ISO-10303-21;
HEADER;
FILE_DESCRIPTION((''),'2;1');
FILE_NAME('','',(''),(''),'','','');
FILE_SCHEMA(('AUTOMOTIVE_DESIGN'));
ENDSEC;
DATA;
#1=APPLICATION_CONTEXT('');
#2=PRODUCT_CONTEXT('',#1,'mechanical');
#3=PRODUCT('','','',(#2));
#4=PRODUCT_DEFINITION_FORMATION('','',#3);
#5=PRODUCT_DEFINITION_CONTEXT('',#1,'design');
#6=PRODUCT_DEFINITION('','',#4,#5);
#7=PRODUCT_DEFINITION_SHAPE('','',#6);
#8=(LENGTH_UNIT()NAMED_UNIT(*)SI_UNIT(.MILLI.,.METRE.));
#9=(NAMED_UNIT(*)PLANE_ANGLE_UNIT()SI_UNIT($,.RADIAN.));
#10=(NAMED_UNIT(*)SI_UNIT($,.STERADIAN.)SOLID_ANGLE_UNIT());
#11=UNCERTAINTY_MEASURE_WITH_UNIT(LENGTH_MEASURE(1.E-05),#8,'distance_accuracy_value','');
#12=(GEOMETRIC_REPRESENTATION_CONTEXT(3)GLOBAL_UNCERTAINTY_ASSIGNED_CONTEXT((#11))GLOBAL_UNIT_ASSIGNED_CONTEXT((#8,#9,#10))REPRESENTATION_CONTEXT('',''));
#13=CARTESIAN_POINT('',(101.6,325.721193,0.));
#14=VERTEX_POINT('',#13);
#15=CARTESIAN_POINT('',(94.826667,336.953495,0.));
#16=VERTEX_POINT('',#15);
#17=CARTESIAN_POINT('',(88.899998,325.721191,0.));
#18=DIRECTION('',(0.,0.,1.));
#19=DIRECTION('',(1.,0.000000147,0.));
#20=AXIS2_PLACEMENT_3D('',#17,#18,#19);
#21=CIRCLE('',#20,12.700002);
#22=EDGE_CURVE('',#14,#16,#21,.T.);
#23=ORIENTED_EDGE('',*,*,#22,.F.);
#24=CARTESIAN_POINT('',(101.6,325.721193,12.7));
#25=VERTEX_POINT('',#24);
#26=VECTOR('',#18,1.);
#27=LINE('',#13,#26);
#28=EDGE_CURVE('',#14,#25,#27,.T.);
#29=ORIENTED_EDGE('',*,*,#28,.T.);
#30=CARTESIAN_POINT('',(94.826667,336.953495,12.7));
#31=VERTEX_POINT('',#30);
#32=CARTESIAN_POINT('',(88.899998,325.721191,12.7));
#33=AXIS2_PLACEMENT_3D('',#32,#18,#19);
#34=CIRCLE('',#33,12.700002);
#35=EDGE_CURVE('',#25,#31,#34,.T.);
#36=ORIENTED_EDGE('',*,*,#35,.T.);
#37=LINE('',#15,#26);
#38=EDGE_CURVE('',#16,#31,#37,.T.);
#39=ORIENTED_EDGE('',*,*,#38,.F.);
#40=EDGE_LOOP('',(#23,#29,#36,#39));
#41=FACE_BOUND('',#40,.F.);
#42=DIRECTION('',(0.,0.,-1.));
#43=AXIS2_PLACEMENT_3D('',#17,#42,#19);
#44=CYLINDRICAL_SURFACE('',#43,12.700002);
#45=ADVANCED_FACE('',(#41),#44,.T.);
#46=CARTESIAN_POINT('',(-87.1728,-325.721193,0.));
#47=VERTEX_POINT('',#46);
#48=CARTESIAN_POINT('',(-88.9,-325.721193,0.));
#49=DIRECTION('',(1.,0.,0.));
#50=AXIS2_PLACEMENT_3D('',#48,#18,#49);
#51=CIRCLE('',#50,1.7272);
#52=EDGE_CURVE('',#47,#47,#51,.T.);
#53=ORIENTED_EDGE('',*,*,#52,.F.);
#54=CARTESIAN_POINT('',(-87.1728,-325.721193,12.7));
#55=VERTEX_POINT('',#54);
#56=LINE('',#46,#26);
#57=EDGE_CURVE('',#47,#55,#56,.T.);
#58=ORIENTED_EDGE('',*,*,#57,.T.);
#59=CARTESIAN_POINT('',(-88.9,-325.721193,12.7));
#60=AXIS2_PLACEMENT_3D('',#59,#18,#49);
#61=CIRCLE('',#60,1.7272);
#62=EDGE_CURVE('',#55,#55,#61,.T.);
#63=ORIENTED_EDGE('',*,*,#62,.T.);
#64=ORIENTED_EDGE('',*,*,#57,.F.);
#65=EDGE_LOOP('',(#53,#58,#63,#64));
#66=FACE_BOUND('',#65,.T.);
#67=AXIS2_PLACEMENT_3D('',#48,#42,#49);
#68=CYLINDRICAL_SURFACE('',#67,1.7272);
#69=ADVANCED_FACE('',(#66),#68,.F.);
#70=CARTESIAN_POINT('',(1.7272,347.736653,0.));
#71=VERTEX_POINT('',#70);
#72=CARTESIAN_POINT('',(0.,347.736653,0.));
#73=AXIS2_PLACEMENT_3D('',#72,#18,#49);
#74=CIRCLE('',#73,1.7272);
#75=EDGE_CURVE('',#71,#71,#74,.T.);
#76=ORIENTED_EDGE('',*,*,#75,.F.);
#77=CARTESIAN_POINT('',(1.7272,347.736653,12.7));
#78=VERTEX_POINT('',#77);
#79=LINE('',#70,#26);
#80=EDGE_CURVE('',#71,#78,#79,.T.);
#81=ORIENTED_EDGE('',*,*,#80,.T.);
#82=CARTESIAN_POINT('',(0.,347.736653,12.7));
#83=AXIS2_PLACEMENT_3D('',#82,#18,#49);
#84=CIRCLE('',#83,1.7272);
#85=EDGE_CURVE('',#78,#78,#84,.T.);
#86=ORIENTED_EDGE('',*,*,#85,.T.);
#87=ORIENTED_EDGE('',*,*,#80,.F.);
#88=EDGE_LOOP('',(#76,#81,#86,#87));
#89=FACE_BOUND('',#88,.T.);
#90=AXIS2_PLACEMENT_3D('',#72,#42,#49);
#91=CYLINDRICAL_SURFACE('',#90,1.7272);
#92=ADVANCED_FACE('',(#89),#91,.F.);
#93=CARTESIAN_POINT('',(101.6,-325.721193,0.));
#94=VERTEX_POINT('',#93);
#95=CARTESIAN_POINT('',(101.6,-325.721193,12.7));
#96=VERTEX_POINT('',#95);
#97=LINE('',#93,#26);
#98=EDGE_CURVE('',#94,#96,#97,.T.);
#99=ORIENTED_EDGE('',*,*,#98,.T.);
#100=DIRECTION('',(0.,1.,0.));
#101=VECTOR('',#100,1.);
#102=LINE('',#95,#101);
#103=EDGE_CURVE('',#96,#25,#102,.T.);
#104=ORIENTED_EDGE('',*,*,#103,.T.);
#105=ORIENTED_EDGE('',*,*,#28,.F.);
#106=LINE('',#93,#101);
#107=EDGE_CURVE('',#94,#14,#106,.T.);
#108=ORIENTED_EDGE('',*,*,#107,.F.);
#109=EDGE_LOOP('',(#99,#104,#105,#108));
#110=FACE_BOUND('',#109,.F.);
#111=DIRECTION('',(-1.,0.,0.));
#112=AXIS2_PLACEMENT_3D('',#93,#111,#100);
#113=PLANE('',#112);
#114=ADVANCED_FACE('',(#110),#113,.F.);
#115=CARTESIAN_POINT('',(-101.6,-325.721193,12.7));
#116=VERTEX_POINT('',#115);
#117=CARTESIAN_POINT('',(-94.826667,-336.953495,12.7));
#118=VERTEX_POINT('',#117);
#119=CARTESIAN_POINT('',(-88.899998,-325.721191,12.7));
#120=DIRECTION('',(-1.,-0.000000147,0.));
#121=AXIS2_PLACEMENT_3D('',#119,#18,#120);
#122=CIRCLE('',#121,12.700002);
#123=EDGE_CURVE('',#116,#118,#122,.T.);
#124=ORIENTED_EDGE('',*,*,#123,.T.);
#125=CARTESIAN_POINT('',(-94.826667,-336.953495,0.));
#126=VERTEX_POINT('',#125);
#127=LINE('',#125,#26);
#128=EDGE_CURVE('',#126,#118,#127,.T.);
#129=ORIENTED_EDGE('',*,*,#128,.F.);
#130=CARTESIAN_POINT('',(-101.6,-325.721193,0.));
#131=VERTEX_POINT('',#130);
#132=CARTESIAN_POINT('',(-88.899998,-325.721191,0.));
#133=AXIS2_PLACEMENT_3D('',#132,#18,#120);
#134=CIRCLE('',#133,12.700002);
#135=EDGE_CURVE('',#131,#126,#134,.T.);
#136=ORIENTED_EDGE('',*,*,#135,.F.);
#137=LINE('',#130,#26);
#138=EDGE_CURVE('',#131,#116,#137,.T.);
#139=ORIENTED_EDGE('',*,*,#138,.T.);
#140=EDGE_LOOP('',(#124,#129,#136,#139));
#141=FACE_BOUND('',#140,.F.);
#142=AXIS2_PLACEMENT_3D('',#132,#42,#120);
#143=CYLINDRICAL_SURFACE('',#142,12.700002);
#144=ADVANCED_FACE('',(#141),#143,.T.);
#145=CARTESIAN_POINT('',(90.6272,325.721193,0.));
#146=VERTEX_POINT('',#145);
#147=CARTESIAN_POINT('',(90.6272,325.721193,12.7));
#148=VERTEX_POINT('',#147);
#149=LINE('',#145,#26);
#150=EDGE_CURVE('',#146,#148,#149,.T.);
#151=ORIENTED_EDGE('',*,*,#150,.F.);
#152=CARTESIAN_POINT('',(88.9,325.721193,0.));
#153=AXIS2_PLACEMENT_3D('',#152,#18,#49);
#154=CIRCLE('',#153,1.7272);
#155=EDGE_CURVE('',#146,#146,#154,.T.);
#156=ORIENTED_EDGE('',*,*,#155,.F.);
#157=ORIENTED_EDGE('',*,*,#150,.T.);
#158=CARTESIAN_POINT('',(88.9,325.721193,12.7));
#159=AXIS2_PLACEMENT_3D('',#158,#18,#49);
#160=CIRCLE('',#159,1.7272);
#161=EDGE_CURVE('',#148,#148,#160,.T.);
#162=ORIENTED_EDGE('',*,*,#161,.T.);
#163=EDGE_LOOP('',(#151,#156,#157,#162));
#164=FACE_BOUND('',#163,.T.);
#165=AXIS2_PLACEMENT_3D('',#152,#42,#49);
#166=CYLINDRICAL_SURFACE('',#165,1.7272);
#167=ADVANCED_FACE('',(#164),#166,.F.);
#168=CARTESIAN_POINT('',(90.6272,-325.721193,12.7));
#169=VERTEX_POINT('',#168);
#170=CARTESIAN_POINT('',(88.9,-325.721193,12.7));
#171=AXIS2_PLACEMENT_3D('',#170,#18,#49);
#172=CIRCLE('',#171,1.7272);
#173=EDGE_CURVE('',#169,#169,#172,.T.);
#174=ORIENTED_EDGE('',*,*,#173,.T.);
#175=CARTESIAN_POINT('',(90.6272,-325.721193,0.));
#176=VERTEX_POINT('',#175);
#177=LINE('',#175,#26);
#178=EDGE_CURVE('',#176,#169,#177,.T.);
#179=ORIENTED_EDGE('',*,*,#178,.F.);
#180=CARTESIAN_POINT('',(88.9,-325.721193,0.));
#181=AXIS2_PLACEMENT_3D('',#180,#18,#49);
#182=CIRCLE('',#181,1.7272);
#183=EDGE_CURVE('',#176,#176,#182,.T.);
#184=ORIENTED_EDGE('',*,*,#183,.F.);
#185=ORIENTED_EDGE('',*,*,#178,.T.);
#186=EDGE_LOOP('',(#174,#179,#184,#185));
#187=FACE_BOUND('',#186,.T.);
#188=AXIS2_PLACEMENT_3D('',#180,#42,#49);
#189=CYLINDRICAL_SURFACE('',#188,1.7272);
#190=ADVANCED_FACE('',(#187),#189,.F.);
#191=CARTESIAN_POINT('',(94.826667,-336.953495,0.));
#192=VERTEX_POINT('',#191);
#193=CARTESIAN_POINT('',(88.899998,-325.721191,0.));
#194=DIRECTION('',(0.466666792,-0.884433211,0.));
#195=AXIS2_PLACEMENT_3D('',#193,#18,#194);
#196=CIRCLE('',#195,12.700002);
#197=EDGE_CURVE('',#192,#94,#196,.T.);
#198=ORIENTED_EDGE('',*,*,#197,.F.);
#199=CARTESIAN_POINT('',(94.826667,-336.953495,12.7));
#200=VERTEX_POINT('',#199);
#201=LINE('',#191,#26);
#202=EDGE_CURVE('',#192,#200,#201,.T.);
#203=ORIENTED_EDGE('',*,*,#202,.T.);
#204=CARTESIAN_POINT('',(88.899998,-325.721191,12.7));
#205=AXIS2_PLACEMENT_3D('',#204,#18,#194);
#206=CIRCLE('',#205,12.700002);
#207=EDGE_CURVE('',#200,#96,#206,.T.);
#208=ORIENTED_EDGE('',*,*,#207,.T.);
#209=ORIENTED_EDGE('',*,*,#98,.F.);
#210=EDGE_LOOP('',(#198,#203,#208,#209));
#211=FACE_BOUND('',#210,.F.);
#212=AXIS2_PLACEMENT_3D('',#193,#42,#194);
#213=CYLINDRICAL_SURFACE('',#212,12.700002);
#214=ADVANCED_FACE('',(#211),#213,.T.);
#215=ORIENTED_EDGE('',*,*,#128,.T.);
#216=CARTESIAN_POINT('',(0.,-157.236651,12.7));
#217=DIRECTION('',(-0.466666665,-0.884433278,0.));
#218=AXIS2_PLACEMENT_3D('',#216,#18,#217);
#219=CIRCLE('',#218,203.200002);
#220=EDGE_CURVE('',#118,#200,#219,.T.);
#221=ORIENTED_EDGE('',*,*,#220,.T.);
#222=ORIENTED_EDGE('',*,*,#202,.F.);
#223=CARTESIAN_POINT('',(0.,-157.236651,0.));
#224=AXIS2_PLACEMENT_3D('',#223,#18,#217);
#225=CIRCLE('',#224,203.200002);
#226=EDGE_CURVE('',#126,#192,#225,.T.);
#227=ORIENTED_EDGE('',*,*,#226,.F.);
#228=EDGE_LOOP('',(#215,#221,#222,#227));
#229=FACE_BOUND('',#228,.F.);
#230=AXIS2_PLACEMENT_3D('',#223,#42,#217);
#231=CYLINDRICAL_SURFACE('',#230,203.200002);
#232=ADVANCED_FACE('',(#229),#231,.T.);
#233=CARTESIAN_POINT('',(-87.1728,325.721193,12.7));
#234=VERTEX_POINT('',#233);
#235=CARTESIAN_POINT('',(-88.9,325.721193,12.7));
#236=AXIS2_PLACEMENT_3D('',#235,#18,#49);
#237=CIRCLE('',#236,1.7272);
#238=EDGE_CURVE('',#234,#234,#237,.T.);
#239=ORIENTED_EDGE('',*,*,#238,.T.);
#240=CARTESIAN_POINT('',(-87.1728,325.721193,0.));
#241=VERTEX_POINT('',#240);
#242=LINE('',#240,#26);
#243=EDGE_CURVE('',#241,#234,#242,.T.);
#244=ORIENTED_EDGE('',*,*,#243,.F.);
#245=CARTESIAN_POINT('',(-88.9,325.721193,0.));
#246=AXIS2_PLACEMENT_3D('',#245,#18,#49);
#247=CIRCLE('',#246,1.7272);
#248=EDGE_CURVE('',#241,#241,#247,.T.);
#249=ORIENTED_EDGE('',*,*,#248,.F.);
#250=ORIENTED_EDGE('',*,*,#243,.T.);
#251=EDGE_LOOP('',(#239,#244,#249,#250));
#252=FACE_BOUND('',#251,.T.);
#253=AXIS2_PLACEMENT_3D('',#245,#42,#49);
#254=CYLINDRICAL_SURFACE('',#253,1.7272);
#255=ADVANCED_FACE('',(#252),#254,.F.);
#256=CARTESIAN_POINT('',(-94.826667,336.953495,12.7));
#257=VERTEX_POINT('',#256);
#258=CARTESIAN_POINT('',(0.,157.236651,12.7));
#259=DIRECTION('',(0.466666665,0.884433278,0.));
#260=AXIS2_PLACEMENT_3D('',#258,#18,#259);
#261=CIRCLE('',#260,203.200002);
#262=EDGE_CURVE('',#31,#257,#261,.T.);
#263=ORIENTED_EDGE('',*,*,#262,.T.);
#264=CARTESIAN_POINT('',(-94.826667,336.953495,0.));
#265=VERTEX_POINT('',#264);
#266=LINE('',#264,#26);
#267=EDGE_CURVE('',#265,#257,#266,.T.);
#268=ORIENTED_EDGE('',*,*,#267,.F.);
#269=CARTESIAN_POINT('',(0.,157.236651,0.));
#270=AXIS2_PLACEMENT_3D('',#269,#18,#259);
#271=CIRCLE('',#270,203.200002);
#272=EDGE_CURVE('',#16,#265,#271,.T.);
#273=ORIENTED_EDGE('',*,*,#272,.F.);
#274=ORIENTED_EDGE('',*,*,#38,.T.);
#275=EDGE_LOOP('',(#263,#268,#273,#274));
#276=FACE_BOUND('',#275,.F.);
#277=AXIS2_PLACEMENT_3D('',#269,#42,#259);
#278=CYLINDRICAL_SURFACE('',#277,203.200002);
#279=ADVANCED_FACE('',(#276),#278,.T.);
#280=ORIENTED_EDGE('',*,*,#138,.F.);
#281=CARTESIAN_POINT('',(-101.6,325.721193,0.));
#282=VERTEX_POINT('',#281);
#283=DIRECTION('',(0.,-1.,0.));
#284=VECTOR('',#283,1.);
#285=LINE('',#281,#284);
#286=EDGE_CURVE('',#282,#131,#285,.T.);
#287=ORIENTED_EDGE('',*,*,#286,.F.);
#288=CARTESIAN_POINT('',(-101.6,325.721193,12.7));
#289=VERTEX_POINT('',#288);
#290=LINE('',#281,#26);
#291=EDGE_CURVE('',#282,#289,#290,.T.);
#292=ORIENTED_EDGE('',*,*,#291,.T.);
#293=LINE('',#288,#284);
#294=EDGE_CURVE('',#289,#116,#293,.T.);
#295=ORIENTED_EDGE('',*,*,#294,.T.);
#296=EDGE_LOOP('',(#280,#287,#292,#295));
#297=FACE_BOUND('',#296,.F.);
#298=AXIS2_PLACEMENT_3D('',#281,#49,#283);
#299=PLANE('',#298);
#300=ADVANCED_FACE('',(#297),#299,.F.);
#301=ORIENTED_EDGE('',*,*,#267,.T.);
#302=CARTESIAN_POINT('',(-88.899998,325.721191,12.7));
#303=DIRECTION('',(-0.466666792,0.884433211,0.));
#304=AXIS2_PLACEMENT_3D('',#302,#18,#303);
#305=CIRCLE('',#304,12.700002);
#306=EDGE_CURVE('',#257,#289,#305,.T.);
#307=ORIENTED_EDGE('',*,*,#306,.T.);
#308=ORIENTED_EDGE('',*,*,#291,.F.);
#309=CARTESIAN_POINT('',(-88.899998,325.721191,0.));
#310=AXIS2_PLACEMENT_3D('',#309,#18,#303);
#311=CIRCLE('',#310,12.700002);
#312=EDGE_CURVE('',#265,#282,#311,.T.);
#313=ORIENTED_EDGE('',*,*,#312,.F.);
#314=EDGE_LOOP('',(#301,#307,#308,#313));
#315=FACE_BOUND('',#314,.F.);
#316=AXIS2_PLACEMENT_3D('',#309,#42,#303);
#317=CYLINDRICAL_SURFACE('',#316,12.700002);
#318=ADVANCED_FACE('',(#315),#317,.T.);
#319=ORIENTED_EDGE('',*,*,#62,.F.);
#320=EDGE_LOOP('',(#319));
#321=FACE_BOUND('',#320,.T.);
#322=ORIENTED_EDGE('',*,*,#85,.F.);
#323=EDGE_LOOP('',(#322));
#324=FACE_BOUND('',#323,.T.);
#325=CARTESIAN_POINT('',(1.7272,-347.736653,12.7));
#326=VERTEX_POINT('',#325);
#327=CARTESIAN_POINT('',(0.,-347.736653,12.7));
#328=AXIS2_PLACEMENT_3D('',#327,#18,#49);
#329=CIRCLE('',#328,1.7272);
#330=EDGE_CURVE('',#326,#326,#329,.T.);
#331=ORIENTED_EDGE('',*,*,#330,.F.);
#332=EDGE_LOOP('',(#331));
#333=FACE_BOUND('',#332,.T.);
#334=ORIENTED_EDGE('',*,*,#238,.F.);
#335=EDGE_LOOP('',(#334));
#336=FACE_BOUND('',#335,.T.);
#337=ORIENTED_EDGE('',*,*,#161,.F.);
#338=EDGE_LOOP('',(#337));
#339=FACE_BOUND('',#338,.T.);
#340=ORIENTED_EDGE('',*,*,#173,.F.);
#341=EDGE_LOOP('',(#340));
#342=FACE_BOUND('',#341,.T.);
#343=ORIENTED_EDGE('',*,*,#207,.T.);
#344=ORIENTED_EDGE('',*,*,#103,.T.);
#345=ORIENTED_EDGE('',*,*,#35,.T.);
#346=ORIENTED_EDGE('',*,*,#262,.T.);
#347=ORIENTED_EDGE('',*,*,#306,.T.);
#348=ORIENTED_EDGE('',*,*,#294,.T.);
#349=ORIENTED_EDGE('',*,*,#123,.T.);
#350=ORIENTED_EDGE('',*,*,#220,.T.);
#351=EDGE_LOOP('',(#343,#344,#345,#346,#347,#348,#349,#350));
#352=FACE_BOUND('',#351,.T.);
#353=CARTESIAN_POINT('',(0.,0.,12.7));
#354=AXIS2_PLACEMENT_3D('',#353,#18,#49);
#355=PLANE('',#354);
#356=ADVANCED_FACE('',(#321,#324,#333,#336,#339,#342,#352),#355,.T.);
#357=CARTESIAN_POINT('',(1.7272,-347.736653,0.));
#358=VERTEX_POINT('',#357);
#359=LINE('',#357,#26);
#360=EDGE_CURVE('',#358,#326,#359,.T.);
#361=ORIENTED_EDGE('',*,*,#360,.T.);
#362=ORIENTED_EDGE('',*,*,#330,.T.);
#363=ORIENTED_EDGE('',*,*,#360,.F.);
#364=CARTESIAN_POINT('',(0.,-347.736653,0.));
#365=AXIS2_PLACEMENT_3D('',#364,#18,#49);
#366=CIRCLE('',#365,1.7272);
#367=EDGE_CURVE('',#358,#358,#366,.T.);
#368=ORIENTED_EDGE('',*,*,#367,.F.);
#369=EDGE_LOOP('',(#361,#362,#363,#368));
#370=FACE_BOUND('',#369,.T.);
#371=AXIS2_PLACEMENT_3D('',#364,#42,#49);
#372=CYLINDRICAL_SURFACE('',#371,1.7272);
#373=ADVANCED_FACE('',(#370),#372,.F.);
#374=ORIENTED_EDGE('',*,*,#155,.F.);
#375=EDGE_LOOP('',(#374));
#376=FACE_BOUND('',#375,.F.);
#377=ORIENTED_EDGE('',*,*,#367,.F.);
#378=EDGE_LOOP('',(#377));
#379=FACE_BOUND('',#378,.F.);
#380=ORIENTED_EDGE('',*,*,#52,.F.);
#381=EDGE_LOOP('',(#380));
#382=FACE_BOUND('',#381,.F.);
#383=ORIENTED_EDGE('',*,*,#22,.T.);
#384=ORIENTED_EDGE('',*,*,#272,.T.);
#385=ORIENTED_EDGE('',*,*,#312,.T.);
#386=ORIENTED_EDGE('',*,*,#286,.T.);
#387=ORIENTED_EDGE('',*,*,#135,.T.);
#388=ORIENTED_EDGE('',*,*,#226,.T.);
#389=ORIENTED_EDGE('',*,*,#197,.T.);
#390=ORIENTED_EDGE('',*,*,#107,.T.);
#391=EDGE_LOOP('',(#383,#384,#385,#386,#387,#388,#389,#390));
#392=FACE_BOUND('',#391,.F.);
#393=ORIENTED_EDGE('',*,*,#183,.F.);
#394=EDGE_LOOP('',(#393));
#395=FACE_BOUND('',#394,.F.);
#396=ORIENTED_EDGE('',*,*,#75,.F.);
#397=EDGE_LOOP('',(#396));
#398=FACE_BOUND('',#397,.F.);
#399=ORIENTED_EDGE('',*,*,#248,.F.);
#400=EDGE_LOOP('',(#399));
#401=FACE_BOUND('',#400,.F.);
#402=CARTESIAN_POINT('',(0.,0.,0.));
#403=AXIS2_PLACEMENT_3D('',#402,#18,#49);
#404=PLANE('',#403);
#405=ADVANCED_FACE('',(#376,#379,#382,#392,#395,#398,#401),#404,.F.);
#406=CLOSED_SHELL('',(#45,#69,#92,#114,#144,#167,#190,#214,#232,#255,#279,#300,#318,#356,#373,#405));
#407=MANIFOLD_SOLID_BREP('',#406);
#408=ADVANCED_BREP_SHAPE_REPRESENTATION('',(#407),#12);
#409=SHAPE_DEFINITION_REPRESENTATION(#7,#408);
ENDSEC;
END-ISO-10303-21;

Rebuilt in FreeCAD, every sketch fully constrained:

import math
import FreeCAD as App
import Part
import Sketcher

V = App.Vector
Q = App.Units.Quantity

doc = App.newDocument("Part")
body = doc.addObject("PartDesign::Body", "Body")

# Sketch on XY plane
sketch1 = doc.addObject("Sketcher::SketchObject", "Sketch")
body.addObject(sketch1)
sketch1.AttachmentSupport = (doc.XY_Plane, [""])
sketch1.MapMode = "FlatFace"
sketch1.addGeometry([
    Part.LineSegment(V(101.6, -325.7, 0), V(101.6, 325.7, 0)),  # 0
    Part.ArcOfCircle(Part.Circle(V(88.9, 325.7, 0), V(0, 0, 1), 12.7), math.radians(0), math.radians(62)),  # 1
    Part.ArcOfCircle(Part.Circle(V(0, 157.2, 0), V(0, 0, 1), 203.2), math.radians(62), math.radians(118)),  # 2
    Part.ArcOfCircle(Part.Circle(V(-88.9, 325.7, 0), V(0, 0, 1), 12.7), math.radians(118), math.radians(180)),  # 3
    Part.LineSegment(V(-101.6, 325.7, 0), V(-101.6, -325.7, 0)),  # 4
    Part.ArcOfCircle(Part.Circle(V(-88.9, -325.7, 0), V(0, 0, 1), 12.7), math.radians(-180), math.radians(-118)),  # 5
    Part.ArcOfCircle(Part.Circle(V(0, -157.2, 0), V(0, 0, 1), 203.2), math.radians(-118), math.radians(-62)),  # 6
    Part.ArcOfCircle(Part.Circle(V(88.9, -325.7, 0), V(0, 0, 1), 12.7), math.radians(-62), math.radians(0)),  # 7
    Part.Circle(V(-88.9, -325.7, 0), V(0, 0, 1), 1.7),  # 8
    Part.Circle(V(0, -347.7, 0), V(0, 0, 1), 1.7),  # 9
    Part.Circle(V(88.9, -325.7, 0), V(0, 0, 1), 1.7),  # 10
    Part.Circle(V(-88.9, 325.7, 0), V(0, 0, 1), 1.7),  # 11
    Part.Circle(V(0, 347.7, 0), V(0, 0, 1), 1.7),  # 12
    Part.Circle(V(88.9, 325.7, 0), V(0, 0, 1), 1.7),  # 13
], False)
sketch1.addConstraint([
    Sketcher.Constraint("Tangent", 0, 2, 1, 1),
    Sketcher.Constraint("Tangent", 1, 2, 2, 1),
    Sketcher.Constraint("Tangent", 2, 2, 3, 1),
    Sketcher.Constraint("Tangent", 3, 2, 4, 1),
    Sketcher.Constraint("Tangent", 4, 2, 5, 1),
    Sketcher.Constraint("Tangent", 5, 2, 6, 1),
    Sketcher.Constraint("Tangent", 6, 2, 7, 1),
    Sketcher.Constraint("Tangent", 7, 2, 0, 1),
    Sketcher.Constraint("Vertical", 0),
    Sketcher.Constraint("Vertical", 4),
    Sketcher.Constraint("Coincident", 8, 3, 5, 3),
    Sketcher.Constraint("Coincident", 10, 3, 7, 3),
    Sketcher.Constraint("Coincident", 11, 3, 3, 3),
    Sketcher.Constraint("Coincident", 13, 3, 1, 3),
    Sketcher.Constraint("Equal", 1, 3),
    Sketcher.Constraint("Equal", 3, 5),
    Sketcher.Constraint("Equal", 2, 6),
    Sketcher.Constraint("Equal", 5, 7),
    Sketcher.Constraint("Equal", 8, 9),
    Sketcher.Constraint("Equal", 9, 10),
    Sketcher.Constraint("Equal", 10, 11),
    Sketcher.Constraint("Equal", 11, 12),
    Sketcher.Constraint("Equal", 12, 13),
    Sketcher.Constraint("Symmetric", 1, 3, 5, 3, -1, 1),
    Sketcher.Constraint("Symmetric", 9, 3, 12, 3, -1, 1),
    Sketcher.Constraint("Symmetric", 2, 3, 6, 3, -1),
    Sketcher.Constraint("PointOnObject", 9, 3, -2),
    Sketcher.Constraint("Radius", 2, Q("8.0000001 in")),
    Sketcher.Constraint("Radius", 1, Q("0.5000001 in")),
    Sketcher.Constraint("Diameter", 8, Q("0.136 in")),
    Sketcher.Constraint("DistanceX", -1, 1, 0, 2, Q("4 in")),
    Sketcher.Constraint("DistanceY", 9, 3, 6, 3, Q("7.5000001 in")),
    Sketcher.Constraint("DistanceY", 0, 1, 0, 2, 651.442386),
])
pad1 = doc.addObject("PartDesign::Pad", "Pad")
body.addObject(pad1)
pad1.Profile = sketch1
pad1.Length = Q("0.5 in")

doc.recompute()
